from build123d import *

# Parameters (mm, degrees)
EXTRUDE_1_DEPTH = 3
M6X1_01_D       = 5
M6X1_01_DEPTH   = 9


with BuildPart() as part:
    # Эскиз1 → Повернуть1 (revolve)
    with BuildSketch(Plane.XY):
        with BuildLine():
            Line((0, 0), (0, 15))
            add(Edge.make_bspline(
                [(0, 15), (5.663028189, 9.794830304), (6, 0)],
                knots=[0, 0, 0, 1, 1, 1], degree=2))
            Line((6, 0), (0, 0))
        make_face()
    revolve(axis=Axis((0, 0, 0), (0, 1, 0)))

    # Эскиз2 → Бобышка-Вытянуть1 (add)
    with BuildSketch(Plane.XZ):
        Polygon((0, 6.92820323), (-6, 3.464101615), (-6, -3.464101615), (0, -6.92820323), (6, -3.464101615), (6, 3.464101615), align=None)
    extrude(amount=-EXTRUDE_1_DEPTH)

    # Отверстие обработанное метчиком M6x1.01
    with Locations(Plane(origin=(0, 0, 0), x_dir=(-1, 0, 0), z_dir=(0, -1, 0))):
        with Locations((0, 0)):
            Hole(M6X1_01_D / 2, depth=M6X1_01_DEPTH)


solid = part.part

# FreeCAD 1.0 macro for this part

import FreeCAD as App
import Part
import Sketcher
from FreeCAD import Vector
Q = App.Units.Quantity


def add_polygon(sketch, points):
    """Adds a closed chain of lines whose ends are joined by coincident constraints."""
    first, n = sketch.GeometryCount, len(points)
    for a, b in zip(points, points[1:] + points[:1]):
        sketch.addGeometry(Part.LineSegment(App.Vector(*a, 0), App.Vector(*b, 0)), False)
    for i in range(n):
        sketch.addConstraint(Sketcher.Constraint("Coincident", first + i, 2, first + (i + 1) % n, 1))

doc = App.newDocument("Part")
body = doc.addObject("PartDesign::Body", "Body")

# Sketch on XY plane
sketch1 = body.newObject("Sketcher::SketchObject", "Sketch")
sketch1.AttachmentSupport = (doc.getObject("XY_Plane"), [""])
sketch1.MapMode = "FlatFace"
sketch1.addGeometry([
    Part.LineSegment(Vector(0, 15, 0), Vector(0, 0, 0)),
    Part.LineSegment(Vector(0, 0, 0), Vector(6, 0, 0)),
    Part.BSplineCurve([Vector(0, 15, 0), Vector(5.663028, 9.79483, 0), Vector(6, 0, 0)], [3, 3], [0, 1], False, 2, [1, 1, 1], False),
], False)
sketch1.addConstraint([
    Sketcher.Constraint("Block", 2),
    Sketcher.Constraint("Coincident", 0, 2, 1, 1),
    Sketcher.Constraint("Coincident", 1, 2, 2, 2),
    Sketcher.Constraint("Coincident", 2, 1, 0, 1),
    Sketcher.Constraint("Vertical", 0),
    Sketcher.Constraint("Horizontal", 1),
])
revolution = body.newObject("PartDesign::Revolution", "Revolution")
revolution.Profile = sketch1
revolution.ReferenceAxis = (sketch1, ["V_Axis"])
revolution.Angle = 360

# Sketch on XZ plane
sketch2 = body.newObject("Sketcher::SketchObject", "Sketch001")
sketch2.AttachmentSupport = (doc.getObject("XZ_Plane"), [""])
sketch2.MapMode = "FlatFace"
add_polygon(sketch2, [(0, 7), (-6, 3), (-6, -3), (0, -7), (6, -3), (6, 3)])  # lines 0-5
sketch2.addConstraint([
    Sketcher.Constraint("Vertical", 1),
    Sketcher.Constraint("Vertical", 4),
    Sketcher.Constraint("Symmetric", 0, 2, 3, 2, -1, 1),
    Sketcher.Constraint("Symmetric", 2, 2, 5, 2, -1, 1),
    Sketcher.Constraint("PointOnObject", 2, 2, -2),
    Sketcher.Constraint("Parallel", 2, 5),
    Sketcher.Constraint("Horizontal", 1, 2, 3, 2),
    Sketcher.Constraint("Angle", 0, Q("-150 deg")),
    Sketcher.Constraint("DistanceX", 0, 2, -1, 1, Q("6 mm")),
    Sketcher.Constraint("DistanceY", -1, 1, 0, 2, Q("3.464102 mm")),
])
pad1 = body.newObject("PartDesign::Pad", "Pad")
pad1.Profile = sketch2
pad1.Length = 3
pad1.Reversed = True

# Sketch on XZ plane
sketch3 = body.newObject("Sketcher::SketchObject", "Sketch002")
sketch3.AttachmentSupport = (doc.getObject("XZ_Plane"), [""])
sketch3.MapMode = "FlatFace"
sketch3.addGeometry(Part.Circle(Vector(0, 0, 0), Vector(0, 0, 1), 2.5), False)
sketch3.addConstraint([
    Sketcher.Constraint("Coincident", 0, 3, -1, 1),
    Sketcher.Constraint("Diameter", 0, Q("5 mm")),
])
doc.recompute()
hole = body.newObject("PartDesign::Hole", "Hole")
hole.Profile = sketch3
hole.ThreadType = "None"
hole.Diameter = 5
hole.DepthType = "Dimension"
hole.Depth = 9
hole.DrillPoint = "Flat"

doc.recompute()
